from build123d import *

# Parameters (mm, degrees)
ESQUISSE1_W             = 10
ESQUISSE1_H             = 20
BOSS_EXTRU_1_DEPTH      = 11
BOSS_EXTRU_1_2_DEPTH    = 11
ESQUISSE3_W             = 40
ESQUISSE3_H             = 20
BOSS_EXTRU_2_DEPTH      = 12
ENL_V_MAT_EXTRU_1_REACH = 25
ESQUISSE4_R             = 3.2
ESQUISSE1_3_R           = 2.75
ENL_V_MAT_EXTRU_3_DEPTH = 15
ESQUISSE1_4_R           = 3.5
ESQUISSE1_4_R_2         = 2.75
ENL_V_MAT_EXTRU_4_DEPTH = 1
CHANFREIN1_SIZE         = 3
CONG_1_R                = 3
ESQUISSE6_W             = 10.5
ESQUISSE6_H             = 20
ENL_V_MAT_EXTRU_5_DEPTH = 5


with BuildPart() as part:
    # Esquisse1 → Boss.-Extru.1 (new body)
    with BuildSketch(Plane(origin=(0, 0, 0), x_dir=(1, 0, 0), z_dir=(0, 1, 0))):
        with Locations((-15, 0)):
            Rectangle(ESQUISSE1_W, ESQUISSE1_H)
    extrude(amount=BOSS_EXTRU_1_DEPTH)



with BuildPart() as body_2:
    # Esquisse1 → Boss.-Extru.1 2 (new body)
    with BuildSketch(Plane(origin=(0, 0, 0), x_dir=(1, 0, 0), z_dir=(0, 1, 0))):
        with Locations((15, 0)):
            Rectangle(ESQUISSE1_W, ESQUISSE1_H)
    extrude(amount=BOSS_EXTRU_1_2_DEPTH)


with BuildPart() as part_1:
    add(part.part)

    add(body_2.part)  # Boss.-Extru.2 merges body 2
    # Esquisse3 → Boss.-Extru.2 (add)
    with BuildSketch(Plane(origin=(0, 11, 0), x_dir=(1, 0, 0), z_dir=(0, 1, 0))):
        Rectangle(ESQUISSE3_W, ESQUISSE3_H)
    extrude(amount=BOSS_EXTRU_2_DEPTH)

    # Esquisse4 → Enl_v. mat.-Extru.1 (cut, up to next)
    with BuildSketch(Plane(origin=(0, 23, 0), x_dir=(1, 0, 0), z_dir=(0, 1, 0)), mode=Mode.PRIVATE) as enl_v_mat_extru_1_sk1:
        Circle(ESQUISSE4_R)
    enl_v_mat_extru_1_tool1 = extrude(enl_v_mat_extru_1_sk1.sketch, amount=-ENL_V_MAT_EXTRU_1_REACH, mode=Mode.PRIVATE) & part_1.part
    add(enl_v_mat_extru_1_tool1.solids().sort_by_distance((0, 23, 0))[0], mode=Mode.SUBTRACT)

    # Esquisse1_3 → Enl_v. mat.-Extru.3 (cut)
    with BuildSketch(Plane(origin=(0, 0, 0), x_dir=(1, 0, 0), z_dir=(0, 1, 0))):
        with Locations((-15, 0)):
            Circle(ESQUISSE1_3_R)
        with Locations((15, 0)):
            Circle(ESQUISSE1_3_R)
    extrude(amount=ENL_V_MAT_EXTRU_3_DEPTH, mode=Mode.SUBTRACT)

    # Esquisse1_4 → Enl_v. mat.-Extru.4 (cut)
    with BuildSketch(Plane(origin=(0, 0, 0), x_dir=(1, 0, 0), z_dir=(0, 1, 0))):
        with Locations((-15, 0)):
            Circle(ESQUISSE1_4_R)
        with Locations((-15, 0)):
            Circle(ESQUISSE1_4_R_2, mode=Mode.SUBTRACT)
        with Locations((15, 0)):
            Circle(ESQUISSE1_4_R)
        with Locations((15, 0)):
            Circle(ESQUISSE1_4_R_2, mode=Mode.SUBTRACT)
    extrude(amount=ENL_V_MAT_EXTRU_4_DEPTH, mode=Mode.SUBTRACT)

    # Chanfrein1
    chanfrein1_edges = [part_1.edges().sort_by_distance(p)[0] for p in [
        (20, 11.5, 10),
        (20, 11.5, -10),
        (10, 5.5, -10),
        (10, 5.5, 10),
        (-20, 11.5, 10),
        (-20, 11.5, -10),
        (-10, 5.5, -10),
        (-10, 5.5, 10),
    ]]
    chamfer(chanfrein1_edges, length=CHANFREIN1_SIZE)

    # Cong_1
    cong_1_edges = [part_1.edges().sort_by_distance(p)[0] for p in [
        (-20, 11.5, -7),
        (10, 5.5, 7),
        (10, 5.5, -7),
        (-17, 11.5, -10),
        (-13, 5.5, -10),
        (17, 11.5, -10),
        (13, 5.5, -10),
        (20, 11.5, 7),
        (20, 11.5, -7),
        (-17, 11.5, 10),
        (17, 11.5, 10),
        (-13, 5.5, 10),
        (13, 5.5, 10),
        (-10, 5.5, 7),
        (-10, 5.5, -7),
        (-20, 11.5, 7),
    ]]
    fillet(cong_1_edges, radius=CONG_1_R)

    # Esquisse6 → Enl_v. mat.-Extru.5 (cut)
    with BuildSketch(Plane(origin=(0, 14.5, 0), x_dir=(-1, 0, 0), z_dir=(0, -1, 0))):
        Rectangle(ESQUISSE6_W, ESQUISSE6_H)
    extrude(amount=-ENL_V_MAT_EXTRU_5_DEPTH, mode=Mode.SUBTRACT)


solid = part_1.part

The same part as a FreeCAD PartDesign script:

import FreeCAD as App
import Part
import Sketcher
Q = App.Units.Quantity


def edges_at(feature, points):
    """Names of the edges that pass closest to the given points."""
    edges = feature.Shape.Edges
    near = lambda p: min(range(len(edges)), key=lambda i: edges[i].distToShape(Part.Vertex(*p))[0])
    return sorted({f"Edge{near(p) + 1}" for p in points})

doc = App.newDocument("Part")
body = doc.addObject("PartDesign::Body", "Body")

# Sketch on XZ plane
sketch1 = body.newObject("Sketcher::SketchObject", "Sketch")
sketch1.AttachmentSupport = (doc.getObject("XZ_Plane"), [""])
sketch1.MapMode = "FlatFace"
sketch1.addGeometry([
    Part.LineSegment(App.Vector(-20, -10, 0), App.Vector(-20, 10, 0)),
    Part.LineSegment(App.Vector(-20, 10, 0), App.Vector(-10, 10, 0)),
    Part.LineSegment(App.Vector(-10, 10, 0), App.Vector(-10, -10, 0)),
    Part.LineSegment(App.Vector(-10, -10, 0), App.Vector(-20, -10, 0)),
], False)
sketch1.addConstraint([
    Sketcher.Constraint("Coincident", 0, 2, 1, 1),
    Sketcher.Constraint("Coincident", 1, 2, 2, 1),
    Sketcher.Constraint("Coincident", 2, 2, 3, 1),
    Sketcher.Constraint("Coincident", 3, 2, 0, 1),
    Sketcher.Constraint("Vertical", 0),
    Sketcher.Constraint("Horizontal", 1),
    Sketcher.Constraint("Vertical", 2),
    Sketcher.Constraint("Horizontal", 3),
    Sketcher.Constraint("DistanceX", 1, 1, 1, 2, Q("10 mm")),
    Sketcher.Constraint("DistanceY", 0, 1, 0, 2, Q("20 mm")),
    Sketcher.Constraint("DistanceX", 0, 2, -1, 1, Q("20 mm")),
    Sketcher.Constraint("DistanceY", -1, 1, 0, 2, Q("10 mm")),
])
pad1 = body.newObject("PartDesign::Pad", "Pad")
pad1.Profile = sketch1
pad1.Length = 11
pad1.Reversed = True
body2 = doc.addObject("PartDesign::Body", "Body001")

# Sketch on XZ plane
sketch2 = body2.newObject("Sketcher::SketchObject", "Sketch001")
sketch2.AttachmentSupport = (doc.getObject("XZ_Plane001"), [""])
sketch2.MapMode = "FlatFace"
sketch2.addGeometry([
    Part.LineSegment(App.Vector(10, -10, 0), App.Vector(10, 10, 0)),
    Part.LineSegment(App.Vector(10, 10, 0), App.Vector(20, 10, 0)),
    Part.LineSegment(App.Vector(20, 10, 0), App.Vector(20, -10, 0)),
    Part.LineSegment(App.Vector(20, -10, 0), App.Vector(10, -10, 0)),
], False)
sketch2.addConstraint([
    Sketcher.Constraint("Coincident", 0, 2, 1, 1),
    Sketcher.Constraint("Coincident", 1, 2, 2, 1),
    Sketcher.Constraint("Coincident", 2, 2, 3, 1),
    Sketcher.Constraint("Coincident", 3, 2, 0, 1),
    Sketcher.Constraint("Vertical", 0),
    Sketcher.Constraint("Horizontal", 1),
    Sketcher.Constraint("Vertical", 2),
    Sketcher.Constraint("Horizontal", 3),
    Sketcher.Constraint("DistanceX", 1, 1, 1, 2, Q("10 mm")),
    Sketcher.Constraint("DistanceY", 0, 1, 0, 2, Q("20 mm")),
    Sketcher.Constraint("DistanceX", -1, 1, 0, 2, Q("10 mm")),
    Sketcher.Constraint("DistanceY", -1, 1, 0, 2, Q("10 mm")),
])
pad2 = body2.newObject("PartDesign::Pad", "Pad001")
pad2.Profile = sketch2
pad2.Length = 11
pad2.Reversed = True
body.AllowCompound = True
doc.recompute()

boolean = body.newObject("PartDesign::Boolean", "Boolean")
boolean.Type = "Fuse"
boolean.addObjects([body2])

# Sketch on XZ plane
sketch3 = body.newObject("Sketcher::SketchObject", "Sketch002")
sketch3.AttachmentSupport = (doc.getObject("XZ_Plane"), [""])
sketch3.MapMode = "FlatFace"
sketch3.AttachmentOffset = App.Placement(App.Vector(0, 0, -11), App.Rotation())
sketch3.addGeometry([
    Part.LineSegment(App.Vector(-20, -10, 0), App.Vector(-20, 10, 0)),
    Part.LineSegment(App.Vector(-20, 10, 0), App.Vector(20, 10, 0)),
    Part.LineSegment(App.Vector(20, 10, 0), App.Vector(20, -10, 0)),
    Part.LineSegment(App.Vector(20, -10, 0), App.Vector(-20, -10, 0)),
], False)
sketch3.addConstraint([
    Sketcher.Constraint("Coincident", 0, 2, 1, 1),
    Sketcher.Constraint("Coincident", 1, 2, 2, 1),
    Sketcher.Constraint("Coincident", 2, 2, 3, 1),
    Sketcher.Constraint("Coincident", 3, 2, 0, 1),
    Sketcher.Constraint("Vertical", 0),
    Sketcher.Constraint("Horizontal", 1),
    Sketcher.Constraint("Vertical", 2),
    Sketcher.Constraint("Horizontal", 3),
    Sketcher.Constraint("Symmetric", 0, 2, 2, 2, -1, 1),
    Sketcher.Constraint("DistanceX", 1, 1, 1, 2, Q("40 mm")),
    Sketcher.Constraint("DistanceY", 0, 1, 0, 2, Q("20 mm")),
])
pad3 = body.newObject("PartDesign::Pad", "Pad002")
pad3.Profile = sketch3
pad3.Length = 12
pad3.Reversed = True

# Sketch on XZ plane
sketch4 = body.newObject("Sketcher::SketchObject", "Sketch003")
sketch4.AttachmentSupport = (doc.getObject("XZ_Plane"), [""])
sketch4.MapMode = "FlatFace"
sketch4.AttachmentOffset = App.Placement(App.Vector(0, 0, -23), App.Rotation())
sketch4.addGeometry(Part.Circle(App.Vector(0, 0, 0), App.Vector(0, 0, 1), 3.2), False)
sketch4.addConstraint([
    Sketcher.Constraint("Coincident", 0, 3, -1, 1),
    Sketcher.Constraint("Diameter", 0, Q("6.4 mm")),
])
pocket1 = body.newObject("PartDesign::Pocket", "Pocket")
pocket1.Profile = sketch4
pocket1.Type = "UpToFirst"
pocket1.Reversed = True

# Sketch on XZ plane
sketch5 = body.newObject("Sketcher::SketchObject", "Sketch004")
sketch5.AttachmentSupport = (doc.getObject("XZ_Plane"), [""])
sketch5.MapMode = "FlatFace"
sketch5.addGeometry([
    Part.Circle(App.Vector(-15, 0, 0), App.Vector(0, 0, 1), 2.8),
    Part.Circle(App.Vector(15, 0, 0), App.Vector(0, 0, 1), 2.8),
], False)
sketch5.addConstraint([
    Sketcher.Constraint("Equal", 0, 1),
    Sketcher.Constraint("Symmetric", 0, 3, 1, 3, -1, 1),
    Sketcher.Constraint("PointOnObject", 0, 3, -1),
    Sketcher.Constraint("Diameter", 0, Q("5.5 mm")),
    Sketcher.Constraint("DistanceX", 0, 3, -1, 1, Q("15 mm")),
])
pocket2 = body.newObject("PartDesign::Pocket", "Pocket001")
pocket2.Profile = sketch5
pocket2.Length = 15

# Sketch on XZ plane
sketch6 = body.newObject("Sketcher::SketchObject", "Sketch005")
sketch6.AttachmentSupport = (doc.getObject("XZ_Plane"), [""])
sketch6.MapMode = "FlatFace"
sketch6.addGeometry([
    Part.Circle(App.Vector(-15, 0, 0), App.Vector(0, 0, 1), 3.5),
    Part.Circle(App.Vector(-15, 0, 0), App.Vector(0, 0, 1), 2.8),
    Part.Circle(App.Vector(15, 0, 0), App.Vector(0, 0, 1), 3.5),
    Part.Circle(App.Vector(15, 0, 0), App.Vector(0, 0, 1), 2.8),
], False)
sketch6.addConstraint([
    Sketcher.Constraint("Coincident", 1, 3, 0, 3),
    Sketcher.Constraint("Coincident", 3, 3, 2, 3),
    Sketcher.Constraint("Equal", 0, 2),
    Sketcher.Constraint("Equal", 1, 3),
    Sketcher.Constraint("Symmetric", 0, 3, 2, 3, -1, 1),
    Sketcher.Constraint("PointOnObject", 0, 3, -1),
    Sketcher.Constraint("Diameter", 0, Q("7 mm")),
    Sketcher.Constraint("Diameter", 1, Q("5.5 mm")),
    Sketcher.Constraint("DistanceX", 0, 3, -1, 1, Q("15 mm")),
])
pocket3 = body.newObject("PartDesign::Pocket", "Pocket002")
pocket3.Profile = sketch6
pocket3.Length = 1
doc.recompute()

chamfer = body.newObject("PartDesign::Chamfer", "Chamfer")
chamfer.Base = (pocket3, edges_at(pocket3, [
    (20, 11.5, 10),
    (20, 11.5, -10),
    (10, 5.5, -10),
    (10, 5.5, 10),
    (-20, 11.5, 10),
    (-20, 11.5, -10),
    (-10, 5.5, -10),
    (-10, 5.5, 10),
]))
chamfer.Size = 3
doc.recompute()

fillet = body.newObject("PartDesign::Fillet", "Fillet")
fillet.Base = (chamfer, edges_at(chamfer, [
    (-20, 11.5, -7),
    (10, 5.5, 7),
    (10, 5.5, -7),
    (-17, 11.5, -10),
    (-13, 5.5, -10),
    (17, 11.5, -10),
    (13, 5.5, -10),
    (20, 11.5, 7),
    (20, 11.5, -7),
    (-17, 11.5, 10),
    (17, 11.5, 10),
    (-13, 5.5, 10),
    (13, 5.5, 10),
    (-10, 5.5, 7),
    (-10, 5.5, -7),
    (-20, 11.5, 7),
]))
fillet.Radius = 3

# Sketch on XZ plane
sketch7 = body.newObject("Sketcher::SketchObject", "Sketch006")
sketch7.AttachmentSupport = (doc.getObject("XZ_Plane"), [""])
sketch7.MapMode = "FlatFace"
sketch7.AttachmentOffset = App.Placement(App.Vector(0, 0, -14.5), App.Rotation())
sketch7.addGeometry([
    Part.LineSegment(App.Vector(5, -10, 0), App.Vector(5, 10, 0)),
    Part.LineSegment(App.Vector(5, 10, 0), App.Vector(-5, 10, 0)),
    Part.LineSegment(App.Vector(-5, 10, 0), App.Vector(-5, -10, 0)),
    Part.LineSegment(App.Vector(-5, -10, 0), App.Vector(5, -10, 0)),
], False)
sketch7.addConstraint([
    Sketcher.Constraint("Coincident", 0, 2, 1, 1),
    Sketcher.Constraint("Coincident", 1, 2, 2, 1),
    Sketcher.Constraint("Coincident", 2, 2, 3, 1),
    Sketcher.Constraint("Coincident", 3, 2, 0, 1),
    Sketcher.Constraint("Vertical", 0),
    Sketcher.Constraint("Horizontal", 1),
    Sketcher.Constraint("Vertical", 2),
    Sketcher.Constraint("Horizontal", 3),
    Sketcher.Constraint("Symmetric", 0, 2, 2, 2, -1, 1),
    Sketcher.Constraint("DistanceY", 0, 1, 0, 2, Q("20 mm")),
    Sketcher.Constraint("DistanceX", 1, 2, 1, 1, Q("10.5 mm")),
])
pocket4 = body.newObject("PartDesign::Pocket", "Pocket003")
pocket4.Profile = sketch7
pocket4.Length = 5

doc.recompute()
